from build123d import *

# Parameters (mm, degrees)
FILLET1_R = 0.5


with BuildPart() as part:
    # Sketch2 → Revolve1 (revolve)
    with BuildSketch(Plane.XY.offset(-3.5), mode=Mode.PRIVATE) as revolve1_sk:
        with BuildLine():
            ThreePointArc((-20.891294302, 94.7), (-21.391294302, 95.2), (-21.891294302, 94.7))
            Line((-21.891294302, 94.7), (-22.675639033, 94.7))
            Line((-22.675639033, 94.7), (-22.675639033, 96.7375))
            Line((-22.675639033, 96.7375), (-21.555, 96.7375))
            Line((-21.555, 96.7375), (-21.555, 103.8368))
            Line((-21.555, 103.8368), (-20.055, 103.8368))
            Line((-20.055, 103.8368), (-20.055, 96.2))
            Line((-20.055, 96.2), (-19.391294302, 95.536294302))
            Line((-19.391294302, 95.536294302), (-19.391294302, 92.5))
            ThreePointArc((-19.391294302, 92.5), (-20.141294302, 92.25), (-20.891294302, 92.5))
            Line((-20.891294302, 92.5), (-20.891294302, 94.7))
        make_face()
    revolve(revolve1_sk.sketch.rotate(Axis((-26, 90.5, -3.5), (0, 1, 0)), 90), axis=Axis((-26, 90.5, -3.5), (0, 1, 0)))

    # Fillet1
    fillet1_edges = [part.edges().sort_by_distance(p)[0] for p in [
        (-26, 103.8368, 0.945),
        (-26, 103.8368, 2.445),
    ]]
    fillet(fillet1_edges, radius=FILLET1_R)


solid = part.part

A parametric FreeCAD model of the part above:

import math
import FreeCAD as App
import Part
import Sketcher
from FreeCAD import Vector
Q = App.Units.Quantity


def edges_at(feature, points):
    """Names of the edges that pass closest to the given points."""
    edges = feature.Shape.Edges
    near = lambda p: min(range(len(edges)), key=lambda i: edges[i].distToShape(Part.Vertex(*p))[0])
    return sorted({f"Edge{near(p) + 1}" for p in points})

doc = App.newDocument("Part")
body = doc.addObject("PartDesign::Body", "Body")

# Sketch on XY plane
sketch1 = body.newObject("Sketcher::SketchObject", "Sketch")
sketch1.AttachmentSupport = (doc.getObject("XY_Plane"), [""])
sketch1.MapMode = "FlatFace"
sketch1.AttachmentOffset = App.Placement(Vector(0, 0, -3.5), App.Rotation())
sketch1.addGeometry([
    Part.ArcOfCircle(Part.Circle(Vector(-21.4, 94.7, 0), Vector(0, 0, 1), 0.5), math.radians(0), math.radians(180)),  # 0
    Part.LineSegment(Vector(-20.9, 94.7, 0), Vector(-20.9, 92.5, 0)),  # 1
    Part.ArcOfCircle(Part.Circle(Vector(-20.1, 93.5, 0), Vector(0, 0, 1), 1.2), math.radians(-127), math.radians(-53)),  # 2
    Part.LineSegment(Vector(-19.4, 92.5, 0), Vector(-19.4, 95.5, 0)),  # 3
    Part.LineSegment(Vector(-19.4, 95.5, 0), Vector(-20.1, 96.2, 0)),  # 4
    Part.LineSegment(Vector(-20.1, 96.2, 0), Vector(-20.1, 103.8, 0)),  # 5
    Part.LineSegment(Vector(-20.1, 103.8, 0), Vector(-21.6, 103.8, 0)),  # 6
    Part.LineSegment(Vector(-21.6, 103.8, 0), Vector(-21.6, 96.7, 0)),  # 7
    Part.LineSegment(Vector(-21.6, 96.7, 0), Vector(-22.7, 96.7, 0)),  # 8
    Part.LineSegment(Vector(-22.7, 96.7, 0), Vector(-22.7, 94.7, 0)),  # 9
    Part.LineSegment(Vector(-22.7, 94.7, 0), Vector(-21.9, 94.7, 0)),  # 10
], False)
sketch1.addGeometry(Part.LineSegment(Vector(-26, 92.5, 0), Vector(-26, 103.8, 0)), True)  # axis
sketch1.addConstraint([
    Sketcher.Constraint("Tangent", 0, 1, 1, 1),
    Sketcher.Constraint("Coincident", 1, 2, 2, 1),
    Sketcher.Constraint("Coincident", 2, 2, 3, 1),
    Sketcher.Constraint("Coincident", 3, 2, 4, 1),
    Sketcher.Constraint("Coincident", 4, 2, 5, 1),
    Sketcher.Constraint("Coincident", 5, 2, 6, 1),
    Sketcher.Constraint("Coincident", 6, 2, 7, 1),
    Sketcher.Constraint("Coincident", 7, 2, 8, 1),
    Sketcher.Constraint("Coincident", 8, 2, 9, 1),
    Sketcher.Constraint("Coincident", 9, 2, 10, 1),
    Sketcher.Constraint("Coincident", 10, 2, 0, 2),
    Sketcher.Constraint("Vertical", 1),
    Sketcher.Constraint("Vertical", 3),
    Sketcher.Constraint("Vertical", 5),
    Sketcher.Constraint("Horizontal", 6),
    Sketcher.Constraint("Vertical", 7),
    Sketcher.Constraint("Horizontal", 8),
    Sketcher.Constraint("Vertical", 9),
    Sketcher.Constraint("Horizontal", 10),
    Sketcher.Constraint("Vertical", 11),
    Sketcher.Constraint("Horizontal", 1, 2, 2, 2),
    Sketcher.Constraint("Horizontal", 0, 1, 9, 2),
    Sketcher.Constraint("Horizontal", 2, 2, 11, 1),
    Sketcher.Constraint("Horizontal", 6, 2, 11, 2),
    Sketcher.Constraint("Radius", 0, Q("0.5 mm")),
    Sketcher.Constraint("Angle", 4, Q("135 deg")),
    Sketcher.Constraint("Radius", 2, Q("1.25 mm")),
    Sketcher.Constraint("DistanceX", 6, 2, 6, 1, Q("1.5 mm")),
    Sketcher.Constraint("DistanceY", 1, 2, 1, 1, Q("2.2 mm")),
    Sketcher.Constraint("DistanceX", 11, 1, -1, 1, Q("26 mm")),
    Sketcher.Constraint("DistanceY", 1, 2, 2, 3, Q("1 mm")),
    Sketcher.Constraint("DistanceY", -1, 1, 0, 3, Q("94.7 mm")),
    Sketcher.Constraint("DistanceY", -1, 1, 4, 2, Q("96.2 mm")),
    Sketcher.Constraint("DistanceY", 5, 1, 5, 2, Q("7.6368 mm")),
    Sketcher.Constraint("DistanceY", 7, 2, 7, 1, Q("7.0993 mm")),
    Sketcher.Constraint("DistanceX", 4, 2, -1, 1, Q("20.055 mm")),
    Sketcher.Constraint("DistanceX", 8, 2, 8, 1, Q("1.120639 mm")),
    Sketcher.Constraint("Distance", 4, Q("0.938622 mm")),
])
revolution = body.newObject("PartDesign::Revolution", "Revolution")
revolution.Profile = sketch1
revolution.ReferenceAxis = (sketch1, ["Axis0"])
revolution.Angle = 360
doc.recompute()

fillet = body.newObject("PartDesign::Fillet", "Fillet")
fillet.Base = (revolution, edges_at(revolution, [(-26, 103.837, 0.945), (-26, 103.837, 2.445)]))
fillet.Radius = 0.5

doc.recompute()
